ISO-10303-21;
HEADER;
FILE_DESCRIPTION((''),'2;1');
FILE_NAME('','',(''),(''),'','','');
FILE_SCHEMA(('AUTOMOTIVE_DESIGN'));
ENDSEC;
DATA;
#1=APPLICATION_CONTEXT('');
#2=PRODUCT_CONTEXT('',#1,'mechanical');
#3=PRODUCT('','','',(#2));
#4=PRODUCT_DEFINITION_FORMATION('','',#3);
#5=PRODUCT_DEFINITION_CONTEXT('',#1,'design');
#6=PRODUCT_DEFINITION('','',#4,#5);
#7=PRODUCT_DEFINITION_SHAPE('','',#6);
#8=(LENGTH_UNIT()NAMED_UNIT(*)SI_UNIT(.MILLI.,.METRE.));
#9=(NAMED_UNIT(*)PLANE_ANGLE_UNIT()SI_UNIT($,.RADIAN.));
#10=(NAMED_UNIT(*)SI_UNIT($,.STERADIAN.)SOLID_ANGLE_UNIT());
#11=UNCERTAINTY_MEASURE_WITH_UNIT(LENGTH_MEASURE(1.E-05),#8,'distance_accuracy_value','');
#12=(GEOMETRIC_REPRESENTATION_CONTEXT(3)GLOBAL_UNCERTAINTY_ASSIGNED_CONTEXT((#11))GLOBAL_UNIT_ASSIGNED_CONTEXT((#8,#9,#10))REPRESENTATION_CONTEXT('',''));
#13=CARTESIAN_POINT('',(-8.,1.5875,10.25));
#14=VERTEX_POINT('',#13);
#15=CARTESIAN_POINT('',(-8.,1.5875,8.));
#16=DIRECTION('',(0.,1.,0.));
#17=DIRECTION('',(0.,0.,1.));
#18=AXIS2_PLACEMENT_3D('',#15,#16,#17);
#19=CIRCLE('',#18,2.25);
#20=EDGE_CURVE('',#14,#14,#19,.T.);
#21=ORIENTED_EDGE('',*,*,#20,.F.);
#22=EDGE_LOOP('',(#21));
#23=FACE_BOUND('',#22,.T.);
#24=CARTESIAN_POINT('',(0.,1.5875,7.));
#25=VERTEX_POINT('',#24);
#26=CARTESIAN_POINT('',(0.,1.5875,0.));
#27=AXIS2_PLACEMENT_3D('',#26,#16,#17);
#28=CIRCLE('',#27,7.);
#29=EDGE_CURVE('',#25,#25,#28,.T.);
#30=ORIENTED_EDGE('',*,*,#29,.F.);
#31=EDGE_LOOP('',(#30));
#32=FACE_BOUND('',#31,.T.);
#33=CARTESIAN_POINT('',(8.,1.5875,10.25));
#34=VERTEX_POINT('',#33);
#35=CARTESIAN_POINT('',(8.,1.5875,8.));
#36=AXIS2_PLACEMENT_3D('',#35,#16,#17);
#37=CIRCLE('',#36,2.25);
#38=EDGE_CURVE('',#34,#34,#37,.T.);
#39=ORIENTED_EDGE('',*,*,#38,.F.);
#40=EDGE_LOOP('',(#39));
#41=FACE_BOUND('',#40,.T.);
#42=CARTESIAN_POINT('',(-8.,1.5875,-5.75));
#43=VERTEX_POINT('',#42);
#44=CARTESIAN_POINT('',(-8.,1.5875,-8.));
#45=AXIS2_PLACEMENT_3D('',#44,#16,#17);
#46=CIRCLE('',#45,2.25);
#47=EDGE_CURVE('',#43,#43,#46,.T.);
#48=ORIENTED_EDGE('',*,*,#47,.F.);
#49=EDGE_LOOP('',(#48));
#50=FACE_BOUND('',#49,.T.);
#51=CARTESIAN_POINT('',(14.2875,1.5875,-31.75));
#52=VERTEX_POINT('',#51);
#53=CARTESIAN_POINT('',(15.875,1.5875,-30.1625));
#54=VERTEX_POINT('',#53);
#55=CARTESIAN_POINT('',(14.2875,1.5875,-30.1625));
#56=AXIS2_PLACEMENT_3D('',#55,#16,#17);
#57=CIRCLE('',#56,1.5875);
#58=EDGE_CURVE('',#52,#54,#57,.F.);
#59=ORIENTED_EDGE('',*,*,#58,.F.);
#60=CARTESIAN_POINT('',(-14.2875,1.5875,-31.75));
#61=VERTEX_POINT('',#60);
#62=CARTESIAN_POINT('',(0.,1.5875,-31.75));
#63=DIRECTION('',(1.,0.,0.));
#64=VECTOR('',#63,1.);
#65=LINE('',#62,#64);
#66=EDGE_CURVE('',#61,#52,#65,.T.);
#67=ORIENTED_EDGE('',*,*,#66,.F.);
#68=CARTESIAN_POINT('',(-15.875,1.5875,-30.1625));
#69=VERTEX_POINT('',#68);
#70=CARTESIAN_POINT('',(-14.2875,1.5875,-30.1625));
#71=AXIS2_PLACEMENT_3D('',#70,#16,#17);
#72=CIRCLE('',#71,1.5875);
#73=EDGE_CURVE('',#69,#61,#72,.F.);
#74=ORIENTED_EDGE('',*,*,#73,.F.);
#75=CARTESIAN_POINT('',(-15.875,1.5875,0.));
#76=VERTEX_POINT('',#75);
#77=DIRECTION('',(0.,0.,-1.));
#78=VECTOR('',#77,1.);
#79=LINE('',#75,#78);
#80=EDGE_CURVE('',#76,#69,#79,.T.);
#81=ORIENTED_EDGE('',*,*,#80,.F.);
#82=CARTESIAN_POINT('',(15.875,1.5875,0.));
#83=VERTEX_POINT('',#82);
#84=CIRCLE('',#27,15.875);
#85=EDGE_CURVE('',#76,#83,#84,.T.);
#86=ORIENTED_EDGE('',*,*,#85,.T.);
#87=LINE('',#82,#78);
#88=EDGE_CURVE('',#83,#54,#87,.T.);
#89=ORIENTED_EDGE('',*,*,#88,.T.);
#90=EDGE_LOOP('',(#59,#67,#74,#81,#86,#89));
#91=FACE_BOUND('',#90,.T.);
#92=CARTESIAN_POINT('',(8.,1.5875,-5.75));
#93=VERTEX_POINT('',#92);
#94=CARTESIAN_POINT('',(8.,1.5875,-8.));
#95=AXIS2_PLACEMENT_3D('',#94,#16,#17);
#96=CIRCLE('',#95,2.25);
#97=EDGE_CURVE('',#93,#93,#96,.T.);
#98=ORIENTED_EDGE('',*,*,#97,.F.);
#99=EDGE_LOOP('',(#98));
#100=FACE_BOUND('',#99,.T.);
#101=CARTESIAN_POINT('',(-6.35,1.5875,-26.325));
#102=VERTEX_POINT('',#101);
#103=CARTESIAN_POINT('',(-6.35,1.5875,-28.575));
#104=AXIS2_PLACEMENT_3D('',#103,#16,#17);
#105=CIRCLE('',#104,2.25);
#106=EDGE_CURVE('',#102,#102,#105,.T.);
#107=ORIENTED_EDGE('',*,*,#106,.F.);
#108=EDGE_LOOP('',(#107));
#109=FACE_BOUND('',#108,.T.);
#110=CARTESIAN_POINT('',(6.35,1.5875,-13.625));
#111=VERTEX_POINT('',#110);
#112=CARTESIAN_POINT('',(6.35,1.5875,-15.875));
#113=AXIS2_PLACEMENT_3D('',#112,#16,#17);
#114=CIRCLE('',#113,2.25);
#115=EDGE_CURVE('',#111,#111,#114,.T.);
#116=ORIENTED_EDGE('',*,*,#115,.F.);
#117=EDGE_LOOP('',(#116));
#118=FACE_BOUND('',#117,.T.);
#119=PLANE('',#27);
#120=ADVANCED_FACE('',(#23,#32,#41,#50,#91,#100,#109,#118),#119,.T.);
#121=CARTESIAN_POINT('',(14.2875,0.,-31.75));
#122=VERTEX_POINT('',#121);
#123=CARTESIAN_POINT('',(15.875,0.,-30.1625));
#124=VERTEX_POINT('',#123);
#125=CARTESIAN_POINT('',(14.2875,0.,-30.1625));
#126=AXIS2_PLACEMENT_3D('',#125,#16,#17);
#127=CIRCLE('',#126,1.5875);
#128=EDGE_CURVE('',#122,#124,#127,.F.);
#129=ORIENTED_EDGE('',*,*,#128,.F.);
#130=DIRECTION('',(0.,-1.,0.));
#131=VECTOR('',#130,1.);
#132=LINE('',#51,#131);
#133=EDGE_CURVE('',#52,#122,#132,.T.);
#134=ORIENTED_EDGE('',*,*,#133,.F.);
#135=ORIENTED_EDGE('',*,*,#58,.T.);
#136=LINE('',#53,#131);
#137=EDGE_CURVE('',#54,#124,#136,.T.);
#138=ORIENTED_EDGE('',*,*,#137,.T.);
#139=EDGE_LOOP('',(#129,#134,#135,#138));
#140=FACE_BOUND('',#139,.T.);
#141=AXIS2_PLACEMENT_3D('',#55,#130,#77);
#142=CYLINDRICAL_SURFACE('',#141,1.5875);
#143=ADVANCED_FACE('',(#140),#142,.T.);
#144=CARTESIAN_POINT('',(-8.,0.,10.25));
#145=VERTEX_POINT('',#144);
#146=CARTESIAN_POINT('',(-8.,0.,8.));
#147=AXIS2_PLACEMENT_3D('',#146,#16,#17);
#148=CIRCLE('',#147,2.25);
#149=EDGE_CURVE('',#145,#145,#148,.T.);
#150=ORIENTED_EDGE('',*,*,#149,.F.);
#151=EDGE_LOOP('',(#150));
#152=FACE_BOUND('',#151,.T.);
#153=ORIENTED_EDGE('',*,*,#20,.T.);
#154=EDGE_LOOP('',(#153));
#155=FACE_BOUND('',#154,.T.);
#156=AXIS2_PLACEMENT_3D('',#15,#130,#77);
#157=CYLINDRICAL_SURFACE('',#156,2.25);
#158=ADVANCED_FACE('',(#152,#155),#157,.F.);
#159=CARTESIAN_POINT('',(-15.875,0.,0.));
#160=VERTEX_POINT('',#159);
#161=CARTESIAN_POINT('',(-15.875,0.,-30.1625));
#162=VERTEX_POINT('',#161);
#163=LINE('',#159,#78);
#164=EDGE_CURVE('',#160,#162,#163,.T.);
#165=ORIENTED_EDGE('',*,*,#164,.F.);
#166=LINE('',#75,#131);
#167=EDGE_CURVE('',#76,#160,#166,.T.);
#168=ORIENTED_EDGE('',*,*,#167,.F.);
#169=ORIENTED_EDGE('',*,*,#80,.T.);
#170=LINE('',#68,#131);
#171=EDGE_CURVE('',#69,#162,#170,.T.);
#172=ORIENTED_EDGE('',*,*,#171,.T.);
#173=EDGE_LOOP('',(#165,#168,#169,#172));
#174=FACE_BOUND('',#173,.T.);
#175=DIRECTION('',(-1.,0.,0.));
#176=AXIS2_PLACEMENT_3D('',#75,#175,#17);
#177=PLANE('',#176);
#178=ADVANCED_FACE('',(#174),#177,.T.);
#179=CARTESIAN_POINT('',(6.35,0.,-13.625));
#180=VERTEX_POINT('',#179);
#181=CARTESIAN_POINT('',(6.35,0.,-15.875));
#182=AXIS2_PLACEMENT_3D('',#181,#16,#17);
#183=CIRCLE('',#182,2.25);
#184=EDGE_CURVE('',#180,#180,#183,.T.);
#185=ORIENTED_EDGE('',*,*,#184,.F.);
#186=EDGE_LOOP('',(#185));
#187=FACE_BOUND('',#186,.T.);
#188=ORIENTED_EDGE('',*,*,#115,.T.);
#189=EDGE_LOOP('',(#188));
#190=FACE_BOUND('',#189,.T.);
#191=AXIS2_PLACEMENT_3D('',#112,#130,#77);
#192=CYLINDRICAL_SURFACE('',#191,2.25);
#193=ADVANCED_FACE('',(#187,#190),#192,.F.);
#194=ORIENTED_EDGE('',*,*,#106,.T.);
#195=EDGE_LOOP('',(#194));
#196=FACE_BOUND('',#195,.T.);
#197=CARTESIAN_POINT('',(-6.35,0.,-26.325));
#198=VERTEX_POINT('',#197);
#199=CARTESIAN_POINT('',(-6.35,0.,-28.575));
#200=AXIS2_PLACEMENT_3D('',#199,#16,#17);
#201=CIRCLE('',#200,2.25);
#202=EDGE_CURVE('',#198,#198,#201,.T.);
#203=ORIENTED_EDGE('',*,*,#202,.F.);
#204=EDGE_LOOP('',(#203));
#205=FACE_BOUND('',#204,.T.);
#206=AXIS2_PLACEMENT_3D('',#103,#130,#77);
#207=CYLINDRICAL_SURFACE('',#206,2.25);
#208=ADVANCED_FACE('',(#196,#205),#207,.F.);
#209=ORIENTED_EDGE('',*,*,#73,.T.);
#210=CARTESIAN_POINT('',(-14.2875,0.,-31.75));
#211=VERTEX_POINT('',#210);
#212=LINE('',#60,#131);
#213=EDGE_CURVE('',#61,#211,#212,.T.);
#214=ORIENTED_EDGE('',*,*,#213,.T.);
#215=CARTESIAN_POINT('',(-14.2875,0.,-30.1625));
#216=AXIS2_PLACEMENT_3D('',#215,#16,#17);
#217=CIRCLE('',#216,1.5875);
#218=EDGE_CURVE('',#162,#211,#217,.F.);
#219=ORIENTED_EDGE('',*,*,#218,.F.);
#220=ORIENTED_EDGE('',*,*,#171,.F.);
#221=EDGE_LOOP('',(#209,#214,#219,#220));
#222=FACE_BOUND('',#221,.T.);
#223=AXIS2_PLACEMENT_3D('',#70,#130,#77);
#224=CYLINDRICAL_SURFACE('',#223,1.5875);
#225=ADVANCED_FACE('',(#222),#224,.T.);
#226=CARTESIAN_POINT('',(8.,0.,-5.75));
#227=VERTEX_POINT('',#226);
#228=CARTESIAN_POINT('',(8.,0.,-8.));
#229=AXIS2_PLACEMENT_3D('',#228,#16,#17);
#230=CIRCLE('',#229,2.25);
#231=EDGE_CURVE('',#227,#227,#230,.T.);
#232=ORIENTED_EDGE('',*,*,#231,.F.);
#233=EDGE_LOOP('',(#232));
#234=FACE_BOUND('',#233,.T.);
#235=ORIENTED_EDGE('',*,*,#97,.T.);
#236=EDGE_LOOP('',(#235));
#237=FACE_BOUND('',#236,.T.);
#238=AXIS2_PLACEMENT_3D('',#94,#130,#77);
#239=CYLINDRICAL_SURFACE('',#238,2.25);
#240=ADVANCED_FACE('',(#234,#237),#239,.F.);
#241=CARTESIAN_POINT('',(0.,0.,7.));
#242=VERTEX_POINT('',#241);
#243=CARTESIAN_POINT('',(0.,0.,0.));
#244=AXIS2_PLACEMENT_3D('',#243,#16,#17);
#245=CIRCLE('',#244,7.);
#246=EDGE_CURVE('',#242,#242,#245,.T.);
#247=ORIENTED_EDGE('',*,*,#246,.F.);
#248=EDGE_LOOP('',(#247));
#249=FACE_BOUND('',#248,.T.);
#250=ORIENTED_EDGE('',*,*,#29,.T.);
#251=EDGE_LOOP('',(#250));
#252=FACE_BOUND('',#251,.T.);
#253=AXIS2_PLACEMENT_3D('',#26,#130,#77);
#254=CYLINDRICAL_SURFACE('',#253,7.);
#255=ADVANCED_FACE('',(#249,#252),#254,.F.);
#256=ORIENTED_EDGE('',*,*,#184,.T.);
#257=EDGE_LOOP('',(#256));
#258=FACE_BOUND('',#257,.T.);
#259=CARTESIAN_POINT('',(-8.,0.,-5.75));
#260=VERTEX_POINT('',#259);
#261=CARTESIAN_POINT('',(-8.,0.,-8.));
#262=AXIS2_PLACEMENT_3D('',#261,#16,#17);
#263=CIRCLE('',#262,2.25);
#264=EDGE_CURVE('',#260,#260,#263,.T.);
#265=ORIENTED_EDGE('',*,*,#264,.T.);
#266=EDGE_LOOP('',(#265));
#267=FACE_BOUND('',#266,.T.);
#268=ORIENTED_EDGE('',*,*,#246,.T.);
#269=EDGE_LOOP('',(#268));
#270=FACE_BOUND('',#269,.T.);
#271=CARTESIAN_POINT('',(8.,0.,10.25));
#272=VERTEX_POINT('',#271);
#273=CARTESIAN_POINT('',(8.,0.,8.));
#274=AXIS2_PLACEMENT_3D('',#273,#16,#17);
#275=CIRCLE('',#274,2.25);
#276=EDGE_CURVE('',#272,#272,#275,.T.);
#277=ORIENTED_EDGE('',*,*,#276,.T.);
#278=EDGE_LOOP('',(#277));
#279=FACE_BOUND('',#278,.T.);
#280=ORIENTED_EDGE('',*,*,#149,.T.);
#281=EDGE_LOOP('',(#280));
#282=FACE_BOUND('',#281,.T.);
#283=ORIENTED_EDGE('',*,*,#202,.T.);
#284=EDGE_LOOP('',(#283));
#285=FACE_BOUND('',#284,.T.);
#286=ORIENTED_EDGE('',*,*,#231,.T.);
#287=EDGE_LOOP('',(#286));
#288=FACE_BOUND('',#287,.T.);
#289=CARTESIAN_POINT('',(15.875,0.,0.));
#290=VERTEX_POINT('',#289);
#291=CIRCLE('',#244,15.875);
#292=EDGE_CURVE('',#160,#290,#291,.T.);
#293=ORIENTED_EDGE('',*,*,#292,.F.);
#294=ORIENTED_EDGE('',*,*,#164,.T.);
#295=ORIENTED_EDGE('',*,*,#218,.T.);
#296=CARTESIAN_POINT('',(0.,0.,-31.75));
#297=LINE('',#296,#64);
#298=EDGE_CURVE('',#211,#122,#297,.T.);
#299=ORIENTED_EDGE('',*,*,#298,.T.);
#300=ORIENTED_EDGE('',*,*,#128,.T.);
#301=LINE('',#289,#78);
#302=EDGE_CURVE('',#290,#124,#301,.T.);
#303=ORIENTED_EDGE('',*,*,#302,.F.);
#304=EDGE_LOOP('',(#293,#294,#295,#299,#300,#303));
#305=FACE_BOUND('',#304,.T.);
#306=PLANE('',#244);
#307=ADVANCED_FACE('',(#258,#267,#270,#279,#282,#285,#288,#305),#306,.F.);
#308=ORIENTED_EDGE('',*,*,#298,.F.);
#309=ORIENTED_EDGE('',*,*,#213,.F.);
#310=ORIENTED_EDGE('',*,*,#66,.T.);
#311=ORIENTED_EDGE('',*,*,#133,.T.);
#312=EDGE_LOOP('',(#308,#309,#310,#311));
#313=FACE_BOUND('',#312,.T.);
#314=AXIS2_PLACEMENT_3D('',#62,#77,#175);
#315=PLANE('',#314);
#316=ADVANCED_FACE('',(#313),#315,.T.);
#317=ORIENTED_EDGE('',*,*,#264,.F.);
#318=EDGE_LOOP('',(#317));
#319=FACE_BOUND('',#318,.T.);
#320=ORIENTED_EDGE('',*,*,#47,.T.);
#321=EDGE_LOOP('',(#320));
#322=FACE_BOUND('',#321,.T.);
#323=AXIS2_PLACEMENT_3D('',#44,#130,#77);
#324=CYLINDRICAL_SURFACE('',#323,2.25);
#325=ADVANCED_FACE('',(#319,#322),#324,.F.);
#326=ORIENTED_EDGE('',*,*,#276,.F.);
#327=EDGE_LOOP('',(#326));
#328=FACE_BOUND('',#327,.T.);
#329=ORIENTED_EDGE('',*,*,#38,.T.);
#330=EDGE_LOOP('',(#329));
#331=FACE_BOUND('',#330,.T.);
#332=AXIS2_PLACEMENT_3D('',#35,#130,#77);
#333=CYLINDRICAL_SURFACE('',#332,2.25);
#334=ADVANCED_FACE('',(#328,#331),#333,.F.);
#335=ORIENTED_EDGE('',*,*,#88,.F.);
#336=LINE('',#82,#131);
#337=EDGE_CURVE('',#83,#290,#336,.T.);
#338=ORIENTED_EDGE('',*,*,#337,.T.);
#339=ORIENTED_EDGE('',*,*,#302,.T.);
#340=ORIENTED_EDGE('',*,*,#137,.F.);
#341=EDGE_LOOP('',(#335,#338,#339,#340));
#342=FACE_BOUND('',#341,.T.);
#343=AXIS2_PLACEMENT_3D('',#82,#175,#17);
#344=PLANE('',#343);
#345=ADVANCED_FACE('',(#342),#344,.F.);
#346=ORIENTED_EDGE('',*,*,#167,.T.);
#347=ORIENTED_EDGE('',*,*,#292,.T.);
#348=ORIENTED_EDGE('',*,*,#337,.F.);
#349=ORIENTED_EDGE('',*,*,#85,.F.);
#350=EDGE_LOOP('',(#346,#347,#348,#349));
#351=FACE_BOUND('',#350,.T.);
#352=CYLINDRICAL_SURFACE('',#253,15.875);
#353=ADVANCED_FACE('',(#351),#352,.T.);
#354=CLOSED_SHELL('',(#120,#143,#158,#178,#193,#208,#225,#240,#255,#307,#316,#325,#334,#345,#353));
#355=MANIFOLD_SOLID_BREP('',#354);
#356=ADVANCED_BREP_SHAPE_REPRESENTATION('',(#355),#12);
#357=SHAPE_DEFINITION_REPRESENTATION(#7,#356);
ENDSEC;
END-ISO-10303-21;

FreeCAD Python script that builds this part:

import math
import FreeCAD as App
import Part
import Sketcher
Q = App.Units.Quantity

doc = App.newDocument("Part")
body = doc.addObject("PartDesign::Body", "Body")

# Sketch on XZ plane
sketch1 = doc.addObject("Sketcher::SketchObject", "Sketch")
body.addObject(sketch1)
sketch1.AttachmentSupport = (doc.XZ_Plane, [""])
sketch1.MapMode = "FlatFace"
sketch1.addGeometry(Part.LineSegment(App.Vector(-15.9, -30.2, 0), App.Vector(-15.9, 0, 0)), False)
sketch1.addGeometry(Part.ArcOfCircle(Part.Circle(App.Vector(0, 0, 0), App.Vector(0, 0, 1), 15.9), math.radians(0), math.radians(180)), False)
sketch1.addGeometry(Part.LineSegment(App.Vector(15.9, 0, 0), App.Vector(15.9, -30.2, 0)), False)
sketch1.addGeometry(Part.ArcOfCircle(Part.Circle(App.Vector(14.3, -30.2, 0), App.Vector(0, 0, 1), 1.6), math.radians(-90), math.radians(0)), False)
sketch1.addGeometry(Part.LineSegment(App.Vector(14.3, -31.8, 0), App.Vector(-14.3, -31.8, 0)), False)
sketch1.addGeometry(Part.ArcOfCircle(Part.Circle(App.Vector(-14.3, -30.2, 0), App.Vector(0, 0, 1), 1.6), math.radians(180), math.radians(270)), False)
sketch1.addGeometry(Part.Circle(App.Vector(8, 8, 0), App.Vector(0, 0, 1), 2.2), False)
sketch1.addGeometry(Part.Circle(App.Vector(8, -8, 0), App.Vector(0, 0, 1), 2.2), False)
sketch1.addGeometry(Part.Circle(App.Vector(0, 0, 0), App.Vector(0, 0, 1), 7), False)
sketch1.addGeometry(Part.Circle(App.Vector(-8, 8, 0), App.Vector(0, 0, 1), 2.2), False)
sketch1.addGeometry(Part.Circle(App.Vector(-8, -8, 0), App.Vector(0, 0, 1), 2.2), False)
sketch1.addGeometry(Part.Circle(App.Vector(6.3, -15.9, 0), App.Vector(0, 0, 1), 2.2), False)
sketch1.addGeometry(Part.Circle(App.Vector(-6.3, -28.6, 0), App.Vector(0, 0, 1), 2.2), False)
sketch1.addConstraint(Sketcher.Constraint("Tangent", 0, 2, 1, 2))
sketch1.addConstraint(Sketcher.Constraint("Tangent", 1, 1, 2, 1))
sketch1.addConstraint(Sketcher.Constraint("Tangent", 2, 2, 3, 2))
sketch1.addConstraint(Sketcher.Constraint("Tangent", 3, 1, 4, 1))
sketch1.addConstraint(Sketcher.Constraint("Tangent", 4, 2, 5, 2))
sketch1.addConstraint(Sketcher.Constraint("Tangent", 5, 1, 0, 1))
sketch1.addConstraint(Sketcher.Constraint("Vertical", 0))
sketch1.addConstraint(Sketcher.Constraint("Vertical", 2))
sketch1.addConstraint(Sketcher.Constraint("Horizontal", 4))
sketch1.addConstraint(Sketcher.Constraint("Coincident", 1, 3, -1, 1))
sketch1.addConstraint(Sketcher.Constraint("Coincident", 8, 3, -1, 1))
sketch1.addConstraint(Sketcher.Constraint("Equal", 3, 5))
sketch1.addConstraint(Sketcher.Constraint("Equal", 6, 7))
sketch1.addConstraint(Sketcher.Constraint("Equal", 7, 9))
sketch1.addConstraint(Sketcher.Constraint("Equal", 9, 10))
sketch1.addConstraint(Sketcher.Constraint("Equal", 10, 11))
sketch1.addConstraint(Sketcher.Constraint("Equal", 11, 12))
sketch1.addConstraint(Sketcher.Constraint("Symmetric", 7, 3, 9, 3, -1, 1))
sketch1.addConstraint(Sketcher.Constraint("Symmetric", 6, 3, 10, 3, -1, 1))
sketch1.addConstraint(Sketcher.Constraint("Symmetric", 6, 3, 9, 3, -2))
sketch1.addConstraint(Sketcher.Constraint("Radius", 1, Q("0.625 in")))
sketch1.addConstraint(Sketcher.Constraint("Radius", 3, Q("0.0625 in")))
sketch1.addConstraint(Sketcher.Constraint("DistanceX", 12, 3, 11, 3, Q("0.5 in")))
sketch1.addConstraint(Sketcher.Constraint("DistanceY", 12, 3, 11, 3, Q("0.5 in")))
sketch1.addConstraint(Sketcher.Constraint("Diameter", 6, 4.5))
sketch1.addConstraint(Sketcher.Constraint("Diameter", 8, 14.0))
sketch1.addConstraint(Sketcher.Constraint("DistanceY", 0, 1, 0, 2, Q("1.1875 in")))
sketch1.addConstraint(Sketcher.Constraint("DistanceX", -1, 1, 11, 3, Q("0.25 in")))
sketch1.addConstraint(Sketcher.Constraint("DistanceY", 11, 3, -1, 1, Q("0.625 in")))
sketch1.addConstraint(Sketcher.Constraint("DistanceX", -1, 1, 6, 3, 8.0))
sketch1.addConstraint(Sketcher.Constraint("DistanceY", -1, 1, 6, 3, 8.0))
pad1 = doc.addObject("PartDesign::Pad", "Pad")
body.addObject(pad1)
pad1.Profile = sketch1
pad1.Length = Q("0.0625 in")
pad1.Reversed = True

doc.recompute()
